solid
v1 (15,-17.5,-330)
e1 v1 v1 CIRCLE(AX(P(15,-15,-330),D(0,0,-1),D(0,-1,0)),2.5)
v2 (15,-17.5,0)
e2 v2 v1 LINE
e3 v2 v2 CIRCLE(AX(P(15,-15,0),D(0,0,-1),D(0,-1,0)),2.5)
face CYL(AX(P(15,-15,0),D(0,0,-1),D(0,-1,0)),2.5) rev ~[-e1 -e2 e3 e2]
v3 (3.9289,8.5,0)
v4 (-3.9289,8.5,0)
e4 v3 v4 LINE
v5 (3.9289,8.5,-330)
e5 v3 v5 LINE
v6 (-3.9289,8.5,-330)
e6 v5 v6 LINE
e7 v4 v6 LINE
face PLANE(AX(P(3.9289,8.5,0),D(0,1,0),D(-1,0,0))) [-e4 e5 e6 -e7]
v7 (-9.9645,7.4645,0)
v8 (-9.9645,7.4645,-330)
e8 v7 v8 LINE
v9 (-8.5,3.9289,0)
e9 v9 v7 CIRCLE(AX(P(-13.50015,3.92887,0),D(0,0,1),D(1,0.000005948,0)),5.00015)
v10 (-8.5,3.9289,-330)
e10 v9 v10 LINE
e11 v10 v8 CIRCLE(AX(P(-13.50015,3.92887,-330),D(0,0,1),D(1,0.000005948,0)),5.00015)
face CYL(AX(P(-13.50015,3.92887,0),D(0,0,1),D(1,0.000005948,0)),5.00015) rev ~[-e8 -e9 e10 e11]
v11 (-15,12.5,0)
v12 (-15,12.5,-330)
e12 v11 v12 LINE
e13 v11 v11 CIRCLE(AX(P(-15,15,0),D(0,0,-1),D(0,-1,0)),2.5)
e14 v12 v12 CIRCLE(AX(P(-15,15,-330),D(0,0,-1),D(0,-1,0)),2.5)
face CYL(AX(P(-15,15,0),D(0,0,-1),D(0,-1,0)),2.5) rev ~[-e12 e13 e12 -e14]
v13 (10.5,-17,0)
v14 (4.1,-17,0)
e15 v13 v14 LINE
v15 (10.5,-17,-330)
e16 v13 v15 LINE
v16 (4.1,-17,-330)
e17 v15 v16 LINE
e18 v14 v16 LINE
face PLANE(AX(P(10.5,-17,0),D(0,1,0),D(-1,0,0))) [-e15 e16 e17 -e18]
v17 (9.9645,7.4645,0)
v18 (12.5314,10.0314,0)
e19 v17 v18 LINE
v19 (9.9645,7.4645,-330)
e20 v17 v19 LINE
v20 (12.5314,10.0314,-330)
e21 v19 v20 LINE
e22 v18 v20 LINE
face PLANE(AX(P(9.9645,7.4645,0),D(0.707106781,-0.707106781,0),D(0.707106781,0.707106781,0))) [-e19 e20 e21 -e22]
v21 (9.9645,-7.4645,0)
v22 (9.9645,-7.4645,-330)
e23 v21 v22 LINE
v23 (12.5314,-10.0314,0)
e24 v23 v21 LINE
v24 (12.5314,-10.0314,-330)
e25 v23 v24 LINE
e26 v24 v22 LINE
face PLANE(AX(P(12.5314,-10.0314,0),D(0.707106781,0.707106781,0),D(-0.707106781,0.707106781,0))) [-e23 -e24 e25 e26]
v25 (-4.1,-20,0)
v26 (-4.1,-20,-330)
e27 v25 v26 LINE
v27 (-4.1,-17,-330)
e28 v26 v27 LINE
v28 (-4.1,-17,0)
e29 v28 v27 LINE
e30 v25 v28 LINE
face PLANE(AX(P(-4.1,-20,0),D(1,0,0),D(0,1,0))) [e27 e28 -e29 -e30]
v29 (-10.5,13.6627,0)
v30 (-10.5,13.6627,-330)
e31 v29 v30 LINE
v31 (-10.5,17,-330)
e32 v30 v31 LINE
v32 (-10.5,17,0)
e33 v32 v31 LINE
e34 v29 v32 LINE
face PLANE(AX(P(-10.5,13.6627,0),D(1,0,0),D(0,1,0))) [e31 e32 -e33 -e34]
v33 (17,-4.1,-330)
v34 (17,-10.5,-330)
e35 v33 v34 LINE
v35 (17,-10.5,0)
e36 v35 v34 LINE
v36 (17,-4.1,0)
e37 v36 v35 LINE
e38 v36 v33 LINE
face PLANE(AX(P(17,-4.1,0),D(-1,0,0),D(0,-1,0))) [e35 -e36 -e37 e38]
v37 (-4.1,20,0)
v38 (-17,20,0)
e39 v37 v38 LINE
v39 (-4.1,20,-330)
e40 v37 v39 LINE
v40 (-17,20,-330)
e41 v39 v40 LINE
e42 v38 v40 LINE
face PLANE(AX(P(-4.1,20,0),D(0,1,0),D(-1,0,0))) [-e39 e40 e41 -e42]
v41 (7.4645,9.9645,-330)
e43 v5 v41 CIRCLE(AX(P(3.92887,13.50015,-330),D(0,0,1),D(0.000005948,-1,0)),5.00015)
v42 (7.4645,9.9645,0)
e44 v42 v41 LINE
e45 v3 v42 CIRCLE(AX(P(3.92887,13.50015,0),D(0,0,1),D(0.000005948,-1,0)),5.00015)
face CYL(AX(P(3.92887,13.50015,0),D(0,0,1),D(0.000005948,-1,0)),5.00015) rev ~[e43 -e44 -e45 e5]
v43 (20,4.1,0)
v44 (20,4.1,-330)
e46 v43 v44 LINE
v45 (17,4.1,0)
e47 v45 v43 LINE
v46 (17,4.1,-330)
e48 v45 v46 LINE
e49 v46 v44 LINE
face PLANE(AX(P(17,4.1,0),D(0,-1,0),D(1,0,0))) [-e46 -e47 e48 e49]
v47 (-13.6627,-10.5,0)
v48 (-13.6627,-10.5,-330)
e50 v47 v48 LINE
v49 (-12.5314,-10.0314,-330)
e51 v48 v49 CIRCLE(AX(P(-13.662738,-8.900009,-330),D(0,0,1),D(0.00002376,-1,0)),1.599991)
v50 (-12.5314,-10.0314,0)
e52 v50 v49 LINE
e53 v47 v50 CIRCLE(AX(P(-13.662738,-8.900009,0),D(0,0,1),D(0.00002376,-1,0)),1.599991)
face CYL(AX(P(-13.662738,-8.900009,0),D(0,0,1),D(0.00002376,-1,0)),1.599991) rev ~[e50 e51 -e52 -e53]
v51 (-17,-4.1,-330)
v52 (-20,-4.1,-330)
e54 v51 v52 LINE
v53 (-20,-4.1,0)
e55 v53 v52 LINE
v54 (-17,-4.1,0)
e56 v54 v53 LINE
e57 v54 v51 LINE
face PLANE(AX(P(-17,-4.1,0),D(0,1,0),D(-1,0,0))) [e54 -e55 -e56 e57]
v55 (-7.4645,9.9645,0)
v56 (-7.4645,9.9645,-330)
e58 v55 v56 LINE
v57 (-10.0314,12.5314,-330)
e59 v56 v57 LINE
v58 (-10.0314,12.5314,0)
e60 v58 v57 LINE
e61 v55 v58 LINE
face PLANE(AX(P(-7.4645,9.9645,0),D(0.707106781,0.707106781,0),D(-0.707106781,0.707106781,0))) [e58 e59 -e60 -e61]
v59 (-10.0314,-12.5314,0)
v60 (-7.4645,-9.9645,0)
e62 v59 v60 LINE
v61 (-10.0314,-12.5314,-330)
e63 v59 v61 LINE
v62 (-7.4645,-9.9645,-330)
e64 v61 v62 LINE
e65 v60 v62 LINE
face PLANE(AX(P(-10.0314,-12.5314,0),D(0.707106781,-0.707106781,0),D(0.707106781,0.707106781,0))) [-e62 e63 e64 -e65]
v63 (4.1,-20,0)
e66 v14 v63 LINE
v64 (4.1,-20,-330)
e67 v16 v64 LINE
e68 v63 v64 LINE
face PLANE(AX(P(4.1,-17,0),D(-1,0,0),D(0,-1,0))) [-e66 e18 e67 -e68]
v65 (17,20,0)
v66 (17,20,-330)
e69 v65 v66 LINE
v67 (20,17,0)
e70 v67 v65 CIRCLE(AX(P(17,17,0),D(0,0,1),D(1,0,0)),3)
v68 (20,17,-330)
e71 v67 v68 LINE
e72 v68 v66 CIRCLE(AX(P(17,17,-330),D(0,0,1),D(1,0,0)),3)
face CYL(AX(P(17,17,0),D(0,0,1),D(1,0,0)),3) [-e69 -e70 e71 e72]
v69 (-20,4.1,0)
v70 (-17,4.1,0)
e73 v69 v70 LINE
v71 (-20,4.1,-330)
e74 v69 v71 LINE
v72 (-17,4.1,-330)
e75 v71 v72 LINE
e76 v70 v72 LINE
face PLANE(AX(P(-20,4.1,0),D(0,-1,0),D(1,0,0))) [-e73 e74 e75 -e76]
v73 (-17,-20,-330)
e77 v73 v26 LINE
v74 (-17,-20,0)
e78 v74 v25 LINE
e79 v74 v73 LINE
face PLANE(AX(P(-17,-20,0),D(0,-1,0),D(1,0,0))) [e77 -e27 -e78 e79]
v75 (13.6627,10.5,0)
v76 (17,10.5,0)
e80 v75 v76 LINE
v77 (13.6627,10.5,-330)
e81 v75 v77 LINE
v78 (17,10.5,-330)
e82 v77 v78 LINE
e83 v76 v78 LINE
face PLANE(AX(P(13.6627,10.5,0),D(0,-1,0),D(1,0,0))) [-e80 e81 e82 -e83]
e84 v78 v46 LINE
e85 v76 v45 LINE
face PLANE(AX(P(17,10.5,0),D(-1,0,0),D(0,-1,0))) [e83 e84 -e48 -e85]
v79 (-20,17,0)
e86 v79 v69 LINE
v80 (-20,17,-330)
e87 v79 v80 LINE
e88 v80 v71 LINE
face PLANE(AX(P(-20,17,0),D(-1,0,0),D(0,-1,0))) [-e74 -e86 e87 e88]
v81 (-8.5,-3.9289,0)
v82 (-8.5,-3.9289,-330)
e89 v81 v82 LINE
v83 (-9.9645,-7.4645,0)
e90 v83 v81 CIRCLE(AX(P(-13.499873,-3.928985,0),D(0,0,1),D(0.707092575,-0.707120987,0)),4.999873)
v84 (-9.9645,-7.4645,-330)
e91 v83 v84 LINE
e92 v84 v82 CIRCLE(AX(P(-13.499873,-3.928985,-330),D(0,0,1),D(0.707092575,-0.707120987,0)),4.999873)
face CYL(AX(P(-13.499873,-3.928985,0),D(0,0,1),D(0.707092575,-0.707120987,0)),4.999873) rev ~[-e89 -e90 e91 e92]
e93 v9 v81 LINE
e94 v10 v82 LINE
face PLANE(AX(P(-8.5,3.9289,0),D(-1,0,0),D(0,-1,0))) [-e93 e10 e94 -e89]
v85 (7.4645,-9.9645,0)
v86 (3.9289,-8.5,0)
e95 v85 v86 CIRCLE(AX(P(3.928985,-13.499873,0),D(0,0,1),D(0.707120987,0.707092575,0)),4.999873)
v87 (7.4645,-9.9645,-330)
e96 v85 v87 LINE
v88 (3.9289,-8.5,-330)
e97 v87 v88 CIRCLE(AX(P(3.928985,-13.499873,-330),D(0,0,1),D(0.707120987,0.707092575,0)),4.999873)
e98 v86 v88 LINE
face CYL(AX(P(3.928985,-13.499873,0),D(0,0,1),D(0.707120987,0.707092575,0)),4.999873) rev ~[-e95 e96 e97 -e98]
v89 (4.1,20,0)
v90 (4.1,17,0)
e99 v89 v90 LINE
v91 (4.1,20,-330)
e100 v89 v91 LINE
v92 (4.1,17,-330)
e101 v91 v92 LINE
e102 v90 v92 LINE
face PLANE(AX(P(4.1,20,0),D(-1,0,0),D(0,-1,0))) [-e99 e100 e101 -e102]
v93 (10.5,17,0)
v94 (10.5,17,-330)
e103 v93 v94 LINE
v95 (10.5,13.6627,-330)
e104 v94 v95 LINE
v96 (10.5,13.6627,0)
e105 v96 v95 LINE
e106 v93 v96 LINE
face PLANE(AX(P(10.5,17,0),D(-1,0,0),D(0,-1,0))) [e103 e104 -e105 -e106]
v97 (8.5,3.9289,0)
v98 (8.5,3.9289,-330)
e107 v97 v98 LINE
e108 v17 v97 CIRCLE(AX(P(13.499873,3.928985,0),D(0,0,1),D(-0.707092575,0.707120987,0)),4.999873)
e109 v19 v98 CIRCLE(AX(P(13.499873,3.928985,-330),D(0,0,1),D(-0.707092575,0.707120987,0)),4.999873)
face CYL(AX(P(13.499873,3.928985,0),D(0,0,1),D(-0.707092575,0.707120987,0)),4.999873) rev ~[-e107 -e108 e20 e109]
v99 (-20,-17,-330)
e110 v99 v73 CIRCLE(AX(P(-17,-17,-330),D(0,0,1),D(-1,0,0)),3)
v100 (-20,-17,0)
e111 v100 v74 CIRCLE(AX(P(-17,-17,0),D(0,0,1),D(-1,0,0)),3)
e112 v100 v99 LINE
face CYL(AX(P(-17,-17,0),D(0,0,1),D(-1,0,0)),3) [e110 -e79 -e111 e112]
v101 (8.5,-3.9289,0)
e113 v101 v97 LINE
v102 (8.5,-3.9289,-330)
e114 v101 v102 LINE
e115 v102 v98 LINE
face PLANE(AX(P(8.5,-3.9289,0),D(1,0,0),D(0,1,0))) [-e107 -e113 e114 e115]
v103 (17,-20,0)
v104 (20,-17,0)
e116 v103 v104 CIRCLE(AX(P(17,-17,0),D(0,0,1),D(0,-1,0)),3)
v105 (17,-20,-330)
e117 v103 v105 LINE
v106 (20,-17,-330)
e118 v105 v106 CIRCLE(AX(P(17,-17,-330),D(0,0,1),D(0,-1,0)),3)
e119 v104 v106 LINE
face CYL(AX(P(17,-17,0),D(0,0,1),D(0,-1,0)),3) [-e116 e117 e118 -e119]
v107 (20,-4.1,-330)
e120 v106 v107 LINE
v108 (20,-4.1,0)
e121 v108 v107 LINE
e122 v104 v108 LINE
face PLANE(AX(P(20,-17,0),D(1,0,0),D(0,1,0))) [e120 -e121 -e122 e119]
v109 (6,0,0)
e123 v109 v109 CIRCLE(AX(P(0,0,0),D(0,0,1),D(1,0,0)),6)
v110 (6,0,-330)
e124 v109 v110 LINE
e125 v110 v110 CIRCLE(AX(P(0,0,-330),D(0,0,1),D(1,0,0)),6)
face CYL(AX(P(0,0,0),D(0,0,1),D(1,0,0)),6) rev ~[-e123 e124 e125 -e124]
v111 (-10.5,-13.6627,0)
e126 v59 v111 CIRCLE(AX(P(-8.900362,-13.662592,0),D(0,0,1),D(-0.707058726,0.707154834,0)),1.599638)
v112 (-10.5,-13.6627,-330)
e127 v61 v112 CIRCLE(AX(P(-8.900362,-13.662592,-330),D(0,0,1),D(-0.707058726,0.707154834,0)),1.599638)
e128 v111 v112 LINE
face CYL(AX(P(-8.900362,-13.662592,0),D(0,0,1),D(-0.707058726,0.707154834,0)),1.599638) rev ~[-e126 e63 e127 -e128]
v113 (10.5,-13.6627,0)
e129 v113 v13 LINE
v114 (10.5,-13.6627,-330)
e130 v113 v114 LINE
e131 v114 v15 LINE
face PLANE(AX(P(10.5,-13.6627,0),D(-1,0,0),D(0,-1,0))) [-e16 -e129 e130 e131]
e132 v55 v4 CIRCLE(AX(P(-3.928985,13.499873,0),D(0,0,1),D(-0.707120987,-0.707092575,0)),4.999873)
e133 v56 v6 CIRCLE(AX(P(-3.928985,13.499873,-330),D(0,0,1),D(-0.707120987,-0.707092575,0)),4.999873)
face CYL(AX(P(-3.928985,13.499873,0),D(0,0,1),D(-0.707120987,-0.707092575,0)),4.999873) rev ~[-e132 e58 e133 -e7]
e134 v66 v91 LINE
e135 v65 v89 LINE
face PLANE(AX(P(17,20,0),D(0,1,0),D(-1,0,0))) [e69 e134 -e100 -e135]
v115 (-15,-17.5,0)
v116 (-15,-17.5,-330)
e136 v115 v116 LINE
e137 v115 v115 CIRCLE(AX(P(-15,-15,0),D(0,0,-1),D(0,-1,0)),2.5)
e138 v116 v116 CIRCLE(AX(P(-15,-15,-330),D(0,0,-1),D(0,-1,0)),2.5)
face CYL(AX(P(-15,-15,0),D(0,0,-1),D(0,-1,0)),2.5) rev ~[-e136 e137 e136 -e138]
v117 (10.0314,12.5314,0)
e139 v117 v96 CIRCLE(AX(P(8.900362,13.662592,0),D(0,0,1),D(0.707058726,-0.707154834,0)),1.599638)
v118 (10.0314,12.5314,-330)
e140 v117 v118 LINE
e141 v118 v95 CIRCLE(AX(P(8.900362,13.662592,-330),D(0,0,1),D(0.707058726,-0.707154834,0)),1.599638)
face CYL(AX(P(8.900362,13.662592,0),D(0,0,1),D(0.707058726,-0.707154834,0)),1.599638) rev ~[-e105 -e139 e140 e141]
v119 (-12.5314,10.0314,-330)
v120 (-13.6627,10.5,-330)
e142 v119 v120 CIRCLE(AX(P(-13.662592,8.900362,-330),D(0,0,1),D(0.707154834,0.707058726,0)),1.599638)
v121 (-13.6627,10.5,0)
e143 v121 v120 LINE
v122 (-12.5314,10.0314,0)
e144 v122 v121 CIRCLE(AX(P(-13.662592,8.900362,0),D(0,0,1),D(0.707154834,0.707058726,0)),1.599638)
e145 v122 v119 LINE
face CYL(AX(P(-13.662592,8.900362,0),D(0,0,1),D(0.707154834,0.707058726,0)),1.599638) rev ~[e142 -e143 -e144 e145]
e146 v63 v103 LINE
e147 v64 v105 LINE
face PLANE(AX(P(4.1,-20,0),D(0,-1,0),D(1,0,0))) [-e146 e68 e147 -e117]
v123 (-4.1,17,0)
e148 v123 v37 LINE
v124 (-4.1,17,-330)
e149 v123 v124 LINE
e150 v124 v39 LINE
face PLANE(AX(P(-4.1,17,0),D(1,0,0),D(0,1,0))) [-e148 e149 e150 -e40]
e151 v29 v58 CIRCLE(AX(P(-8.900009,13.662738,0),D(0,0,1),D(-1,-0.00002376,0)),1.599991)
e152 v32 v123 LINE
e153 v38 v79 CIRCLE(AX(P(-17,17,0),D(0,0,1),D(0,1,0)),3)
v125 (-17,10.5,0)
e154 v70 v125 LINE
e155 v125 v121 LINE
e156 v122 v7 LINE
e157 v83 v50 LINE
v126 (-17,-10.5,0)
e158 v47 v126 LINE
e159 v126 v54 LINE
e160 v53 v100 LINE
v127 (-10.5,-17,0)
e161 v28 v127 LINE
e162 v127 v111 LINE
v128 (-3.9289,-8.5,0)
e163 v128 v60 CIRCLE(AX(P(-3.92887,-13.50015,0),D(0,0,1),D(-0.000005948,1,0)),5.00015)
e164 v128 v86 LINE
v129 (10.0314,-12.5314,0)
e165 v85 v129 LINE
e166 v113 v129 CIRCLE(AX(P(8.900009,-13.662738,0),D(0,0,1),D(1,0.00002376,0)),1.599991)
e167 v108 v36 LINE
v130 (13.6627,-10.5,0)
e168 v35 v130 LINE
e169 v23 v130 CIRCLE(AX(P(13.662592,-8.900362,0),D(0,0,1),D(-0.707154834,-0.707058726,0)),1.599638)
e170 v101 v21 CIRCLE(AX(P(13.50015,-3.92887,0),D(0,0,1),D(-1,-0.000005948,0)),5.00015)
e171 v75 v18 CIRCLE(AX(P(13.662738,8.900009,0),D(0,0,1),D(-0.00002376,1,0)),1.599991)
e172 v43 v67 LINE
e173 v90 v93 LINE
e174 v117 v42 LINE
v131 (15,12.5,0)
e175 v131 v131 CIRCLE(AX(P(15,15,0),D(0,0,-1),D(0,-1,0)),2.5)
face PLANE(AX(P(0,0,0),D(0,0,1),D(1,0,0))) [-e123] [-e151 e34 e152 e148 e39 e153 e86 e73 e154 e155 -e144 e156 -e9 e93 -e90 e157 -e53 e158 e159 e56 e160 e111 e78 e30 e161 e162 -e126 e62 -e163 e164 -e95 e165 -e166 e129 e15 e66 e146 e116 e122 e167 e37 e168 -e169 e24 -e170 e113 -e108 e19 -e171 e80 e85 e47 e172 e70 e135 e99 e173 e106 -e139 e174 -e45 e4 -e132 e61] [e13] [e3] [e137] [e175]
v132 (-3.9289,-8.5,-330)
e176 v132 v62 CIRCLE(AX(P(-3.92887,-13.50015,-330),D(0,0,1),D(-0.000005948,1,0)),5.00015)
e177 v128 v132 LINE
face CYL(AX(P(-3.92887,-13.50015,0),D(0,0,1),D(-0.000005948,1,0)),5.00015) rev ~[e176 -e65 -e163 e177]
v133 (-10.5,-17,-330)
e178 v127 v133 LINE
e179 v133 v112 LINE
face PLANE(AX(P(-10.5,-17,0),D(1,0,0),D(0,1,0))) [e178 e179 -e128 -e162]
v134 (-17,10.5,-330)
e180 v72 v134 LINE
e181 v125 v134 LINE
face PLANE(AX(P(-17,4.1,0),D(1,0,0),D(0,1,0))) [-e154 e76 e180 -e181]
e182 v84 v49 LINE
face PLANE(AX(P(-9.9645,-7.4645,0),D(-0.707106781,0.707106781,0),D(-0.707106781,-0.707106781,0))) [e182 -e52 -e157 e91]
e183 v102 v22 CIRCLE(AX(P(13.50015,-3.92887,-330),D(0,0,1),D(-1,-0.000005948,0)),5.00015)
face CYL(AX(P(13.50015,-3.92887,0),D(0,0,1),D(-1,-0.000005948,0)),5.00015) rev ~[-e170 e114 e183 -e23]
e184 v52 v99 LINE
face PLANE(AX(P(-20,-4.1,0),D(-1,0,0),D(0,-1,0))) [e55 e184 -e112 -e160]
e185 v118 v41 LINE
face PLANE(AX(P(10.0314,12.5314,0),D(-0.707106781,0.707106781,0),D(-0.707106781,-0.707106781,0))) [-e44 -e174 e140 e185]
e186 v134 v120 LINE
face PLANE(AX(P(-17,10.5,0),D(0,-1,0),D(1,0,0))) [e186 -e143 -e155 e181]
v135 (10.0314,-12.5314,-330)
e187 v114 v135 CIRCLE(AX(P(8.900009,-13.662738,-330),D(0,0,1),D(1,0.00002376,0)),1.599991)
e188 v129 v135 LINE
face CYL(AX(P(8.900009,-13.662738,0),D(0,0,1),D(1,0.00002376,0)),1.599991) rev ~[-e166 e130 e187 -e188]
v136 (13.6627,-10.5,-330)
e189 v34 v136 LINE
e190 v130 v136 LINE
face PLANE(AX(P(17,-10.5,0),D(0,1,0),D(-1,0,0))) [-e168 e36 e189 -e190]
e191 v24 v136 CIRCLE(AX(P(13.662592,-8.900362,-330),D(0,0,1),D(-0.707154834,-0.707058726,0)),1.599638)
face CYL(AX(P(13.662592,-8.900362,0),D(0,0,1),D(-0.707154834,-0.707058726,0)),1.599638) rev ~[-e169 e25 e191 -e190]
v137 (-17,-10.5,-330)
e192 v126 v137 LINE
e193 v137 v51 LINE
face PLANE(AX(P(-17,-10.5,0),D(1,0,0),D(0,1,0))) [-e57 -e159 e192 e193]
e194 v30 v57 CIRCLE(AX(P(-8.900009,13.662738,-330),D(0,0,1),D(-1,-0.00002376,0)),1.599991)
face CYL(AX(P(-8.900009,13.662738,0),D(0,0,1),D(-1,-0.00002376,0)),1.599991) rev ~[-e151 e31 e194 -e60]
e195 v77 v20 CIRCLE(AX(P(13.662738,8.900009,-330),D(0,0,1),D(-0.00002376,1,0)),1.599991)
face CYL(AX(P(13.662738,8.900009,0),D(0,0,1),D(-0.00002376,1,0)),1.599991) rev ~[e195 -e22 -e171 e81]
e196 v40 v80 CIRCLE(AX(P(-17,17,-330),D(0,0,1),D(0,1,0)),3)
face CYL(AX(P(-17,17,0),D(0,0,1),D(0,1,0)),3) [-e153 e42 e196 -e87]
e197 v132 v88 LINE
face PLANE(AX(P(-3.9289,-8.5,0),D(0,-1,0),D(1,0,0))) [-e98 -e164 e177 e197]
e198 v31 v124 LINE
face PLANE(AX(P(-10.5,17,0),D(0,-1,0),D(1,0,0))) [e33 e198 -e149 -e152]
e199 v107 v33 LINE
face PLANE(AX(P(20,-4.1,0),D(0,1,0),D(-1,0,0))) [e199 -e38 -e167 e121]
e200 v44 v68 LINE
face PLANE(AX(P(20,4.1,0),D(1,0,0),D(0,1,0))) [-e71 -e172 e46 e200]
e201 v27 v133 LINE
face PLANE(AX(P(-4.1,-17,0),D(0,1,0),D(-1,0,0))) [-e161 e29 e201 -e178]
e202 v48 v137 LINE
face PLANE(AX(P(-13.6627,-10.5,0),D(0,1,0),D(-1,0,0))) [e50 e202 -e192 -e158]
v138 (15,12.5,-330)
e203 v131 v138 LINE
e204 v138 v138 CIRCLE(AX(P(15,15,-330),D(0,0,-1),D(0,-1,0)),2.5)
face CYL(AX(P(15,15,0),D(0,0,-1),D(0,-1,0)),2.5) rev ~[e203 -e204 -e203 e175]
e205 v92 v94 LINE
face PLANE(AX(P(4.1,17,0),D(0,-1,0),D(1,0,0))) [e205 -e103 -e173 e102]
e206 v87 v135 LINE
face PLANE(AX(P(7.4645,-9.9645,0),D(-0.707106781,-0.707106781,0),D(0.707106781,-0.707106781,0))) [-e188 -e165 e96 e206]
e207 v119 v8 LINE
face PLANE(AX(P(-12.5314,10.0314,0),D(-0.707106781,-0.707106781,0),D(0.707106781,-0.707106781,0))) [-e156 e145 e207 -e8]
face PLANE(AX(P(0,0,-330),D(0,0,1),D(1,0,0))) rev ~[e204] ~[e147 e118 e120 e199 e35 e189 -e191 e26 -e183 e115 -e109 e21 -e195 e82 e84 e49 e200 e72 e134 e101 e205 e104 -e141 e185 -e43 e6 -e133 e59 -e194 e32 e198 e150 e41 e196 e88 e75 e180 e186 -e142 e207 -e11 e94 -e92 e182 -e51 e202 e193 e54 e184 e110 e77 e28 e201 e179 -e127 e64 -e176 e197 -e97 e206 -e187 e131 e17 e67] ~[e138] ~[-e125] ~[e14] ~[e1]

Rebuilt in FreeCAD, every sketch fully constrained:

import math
import FreeCAD as App
import Part
import Sketcher
Q = App.Units.Quantity

doc = App.newDocument("Part")
body = doc.addObject("PartDesign::Body", "Body")

sketch1 = body.newObject("Sketcher::SketchObject", "Sketch")
sketch1.AttachmentSupport = (doc.getObject("XY_Plane"), [""])
sketch1.MapMode = "FlatFace"
sketch1.addGeometry(Part.LineSegment(App.Vector(-20, -4.1, 0), App.Vector(-20, -17, 0)), False)
sketch1.addGeometry(Part.ArcOfCircle(Part.Circle(App.Vector(-17, -17, 0), App.Vector(0, 0, 1), 3), math.radians(180), math.radians(270)), False)
sketch1.addGeometry(Part.LineSegment(App.Vector(-17, -20, 0), App.Vector(-4.1, -20, 0)), False)
sketch1.addGeometry(Part.LineSegment(App.Vector(-4.1, -20, 0), App.Vector(-4.1, -17, 0)), False)
sketch1.addGeometry(Part.LineSegment(App.Vector(-4.1, -17, 0), App.Vector(-10.5, -17, 0)), False)
sketch1.addGeometry(Part.LineSegment(App.Vector(-10.5, -17, 0), App.Vector(-10.5, -13.7, 0)), False)
sketch1.addGeometry(Part.ArcOfCircle(Part.Circle(App.Vector(-8.9, -13.7, 0), App.Vector(0, 0, 1), 1.6), math.radians(135), math.radians(180)), False)
sketch1.addGeometry(Part.LineSegment(App.Vector(-10, -12.5, 0), App.Vector(-7.5, -10, 0)), False)
sketch1.addGeometry(Part.ArcOfCircle(Part.Circle(App.Vector(-3.9, -13.5, 0), App.Vector(0, 0, 1), 5), math.radians(90), math.radians(135)), False)
sketch1.addGeometry(Part.LineSegment(App.Vector(-3.9, -8.5, 0), App.Vector(3.9, -8.5, 0)), False)
sketch1.addGeometry(Part.ArcOfCircle(Part.Circle(App.Vector(3.9, -13.5, 0), App.Vector(0, 0, 1), 5), math.radians(45), math.radians(90)), False)
sketch1.addGeometry(Part.LineSegment(App.Vector(7.5, -10, 0), App.Vector(10, -12.5, 0)), False)
sketch1.addGeometry(Part.ArcOfCircle(Part.Circle(App.Vector(8.9, -13.7, 0), App.Vector(0, 0, 1), 1.6), math.radians(0), math.radians(45)), False)
sketch1.addGeometry(Part.LineSegment(App.Vector(10.5, -13.7, 0), App.Vector(10.5, -17, 0)), False)
sketch1.addGeometry(Part.LineSegment(App.Vector(10.5, -17, 0), App.Vector(4.1, -17, 0)), False)
sketch1.addGeometry(Part.LineSegment(App.Vector(4.1, -17, 0), App.Vector(4.1, -20, 0)), False)
sketch1.addGeometry(Part.LineSegment(App.Vector(4.1, -20, 0), App.Vector(17, -20, 0)), False)
sketch1.addGeometry(Part.ArcOfCircle(Part.Circle(App.Vector(17, -17, 0), App.Vector(0, 0, 1), 3), math.radians(-90), math.radians(0)), False)
sketch1.addGeometry(Part.LineSegment(App.Vector(20, -17, 0), App.Vector(20, -4.1, 0)), False)
sketch1.addGeometry(Part.LineSegment(App.Vector(20, -4.1, 0), App.Vector(17, -4.1, 0)), False)
sketch1.addGeometry(Part.LineSegment(App.Vector(17, -4.1, 0), App.Vector(17, -10.5, 0)), False)
sketch1.addGeometry(Part.LineSegment(App.Vector(17, -10.5, 0), App.Vector(13.7, -10.5, 0)), False)
sketch1.addGeometry(Part.ArcOfCircle(Part.Circle(App.Vector(13.7, -8.9, 0), App.Vector(0, 0, 1), 1.6), math.radians(-135), math.radians(-90)), False)
sketch1.addGeometry(Part.LineSegment(App.Vector(12.5, -10, 0), App.Vector(10, -7.5, 0)), False)
sketch1.addGeometry(Part.ArcOfCircle(Part.Circle(App.Vector(13.5, -3.9, 0), App.Vector(0, 0, 1), 5), math.radians(180), math.radians(225)), False)
sketch1.addGeometry(Part.LineSegment(App.Vector(8.5, -3.9, 0), App.Vector(8.5, 3.9, 0)), False)
sketch1.addGeometry(Part.ArcOfCircle(Part.Circle(App.Vector(13.5, 3.9, 0), App.Vector(0, 0, 1), 5), math.radians(135), math.radians(180)), False)
sketch1.addGeometry(Part.LineSegment(App.Vector(10, 7.5, 0), App.Vector(12.5, 10, 0)), False)
sketch1.addGeometry(Part.ArcOfCircle(Part.Circle(App.Vector(13.7, 8.9, 0), App.Vector(0, 0, 1), 1.6), math.radians(90), math.radians(135)), False)
sketch1.addGeometry(Part.LineSegment(App.Vector(13.7, 10.5, 0), App.Vector(17, 10.5, 0)), False)
sketch1.addGeometry(Part.LineSegment(App.Vector(17, 10.5, 0), App.Vector(17, 4.1, 0)), False)
sketch1.addGeometry(Part.LineSegment(App.Vector(17, 4.1, 0), App.Vector(20, 4.1, 0)), False)
sketch1.addGeometry(Part.LineSegment(App.Vector(20, 4.1, 0), App.Vector(20, 17, 0)), False)
sketch1.addGeometry(Part.ArcOfCircle(Part.Circle(App.Vector(17, 17, 0), App.Vector(0, 0, 1), 3), math.radians(0), math.radians(90)), False)
sketch1.addGeometry(Part.LineSegment(App.Vector(17, 20, 0), App.Vector(4.1, 20, 0)), False)
sketch1.addGeometry(Part.LineSegment(App.Vector(4.1, 20, 0), App.Vector(4.1, 17, 0)), False)
sketch1.addGeometry(Part.LineSegment(App.Vector(4.1, 17, 0), App.Vector(10.5, 17, 0)), False)
sketch1.addGeometry(Part.LineSegment(App.Vector(10.5, 17, 0), App.Vector(10.5, 13.7, 0)), False)
sketch1.addGeometry(Part.ArcOfCircle(Part.Circle(App.Vector(8.9, 13.7, 0), App.Vector(0, 0, 1), 1.6), math.radians(-45), math.radians(0)), False)
sketch1.addGeometry(Part.LineSegment(App.Vector(10, 12.5, 0), App.Vector(7.5, 10, 0)), False)
sketch1.addGeometry(Part.ArcOfCircle(Part.Circle(App.Vector(3.9, 13.5, 0), App.Vector(0, 0, 1), 5), math.radians(-90), math.radians(-45)), False)
sketch1.addGeometry(Part.LineSegment(App.Vector(3.9, 8.5, 0), App.Vector(-3.9, 8.5, 0)), False)
sketch1.addGeometry(Part.ArcOfCircle(Part.Circle(App.Vector(-3.9, 13.5, 0), App.Vector(0, 0, 1), 5), math.radians(-135), math.radians(-90)), False)
sketch1.addGeometry(Part.LineSegment(App.Vector(-7.5, 10, 0), App.Vector(-10, 12.5, 0)), False)
sketch1.addGeometry(Part.ArcOfCircle(Part.Circle(App.Vector(-8.9, 13.7, 0), App.Vector(0, 0, 1), 1.6), math.radians(180), math.radians(225)), False)
sketch1.addGeometry(Part.LineSegment(App.Vector(-10.5, 13.7, 0), App.Vector(-10.5, 17, 0)), False)
sketch1.addGeometry(Part.LineSegment(App.Vector(-10.5, 17, 0), App.Vector(-4.1, 17, 0)), False)
sketch1.addGeometry(Part.LineSegment(App.Vector(-4.1, 17, 0), App.Vector(-4.1, 20, 0)), False)
sketch1.addGeometry(Part.LineSegment(App.Vector(-4.1, 20, 0), App.Vector(-17, 20, 0)), False)
sketch1.addGeometry(Part.ArcOfCircle(Part.Circle(App.Vector(-17, 17, 0), App.Vector(0, 0, 1), 3), math.radians(90), math.radians(180)), False)
sketch1.addGeometry(Part.LineSegment(App.Vector(-20, 17, 0), App.Vector(-20, 4.1, 0)), False)
sketch1.addGeometry(Part.LineSegment(App.Vector(-20, 4.1, 0), App.Vector(-17, 4.1, 0)), False)
sketch1.addGeometry(Part.LineSegment(App.Vector(-17, 4.1, 0), App.Vector(-17, 10.5, 0)), False)
sketch1.addGeometry(Part.LineSegment(App.Vector(-17, 10.5, 0), App.Vector(-13.7, 10.5, 0)), False)
sketch1.addGeometry(Part.ArcOfCircle(Part.Circle(App.Vector(-13.7, 8.9, 0), App.Vector(0, 0, 1), 1.6), math.radians(45), math.radians(90)), False)
sketch1.addGeometry(Part.LineSegment(App.Vector(-12.5, 10, 0), App.Vector(-10, 7.5, 0)), False)
sketch1.addGeometry(Part.ArcOfCircle(Part.Circle(App.Vector(-13.5, 3.9, 0), App.Vector(0, 0, 1), 5), math.radians(0), math.radians(45)), False)
sketch1.addGeometry(Part.LineSegment(App.Vector(-8.5, 3.9, 0), App.Vector(-8.5, -3.9, 0)), False)
sketch1.addGeometry(Part.ArcOfCircle(Part.Circle(App.Vector(-13.5, -3.9, 0), App.Vector(0, 0, 1), 5), math.radians(-45), math.radians(0)), False)
sketch1.addGeometry(Part.LineSegment(App.Vector(-10, -7.5, 0), App.Vector(-12.5, -10, 0)), False)
sketch1.addGeometry(Part.ArcOfCircle(Part.Circle(App.Vector(-13.7, -8.9, 0), App.Vector(0, 0, 1), 1.6), math.radians(-90), math.radians(-45)), False)
sketch1.addGeometry(Part.LineSegment(App.Vector(-13.7, -10.5, 0), App.Vector(-17, -10.5, 0)), False)
sketch1.addGeometry(Part.LineSegment(App.Vector(-17, -10.5, 0), App.Vector(-17, -4.1, 0)), False)
sketch1.addGeometry(Part.LineSegment(App.Vector(-17, -4.1, 0), App.Vector(-20, -4.1, 0)), False)
sketch1.addGeometry(Part.Circle(App.Vector(0, 0, 0), App.Vector(0, 0, 1), 6), False)
sketch1.addConstraint(Sketcher.Constraint("Tangent", 0, 2, 1, 1))
sketch1.addConstraint(Sketcher.Constraint("Tangent", 1, 2, 2, 1))
sketch1.addConstraint(Sketcher.Constraint("Coincident", 2, 2, 3, 1))
sketch1.addConstraint(Sketcher.Constraint("Coincident", 3, 2, 4, 1))
sketch1.addConstraint(Sketcher.Constraint("Coincident", 4, 2, 5, 1))
sketch1.addConstraint(Sketcher.Constraint("Tangent", 5, 2, 6, 2))
sketch1.addConstraint(Sketcher.Constraint("Tangent", 6, 1, 7, 1))
sketch1.addConstraint(Sketcher.Constraint("Tangent", 7, 2, 8, 2))
sketch1.addConstraint(Sketcher.Constraint("Tangent", 8, 1, 9, 1))
sketch1.addConstraint(Sketcher.Constraint("Tangent", 9, 2, 10, 2))
sketch1.addConstraint(Sketcher.Constraint("Tangent", 10, 1, 11, 1))
sketch1.addConstraint(Sketcher.Constraint("Tangent", 11, 2, 12, 2))
sketch1.addConstraint(Sketcher.Constraint("Tangent", 12, 1, 13, 1))
sketch1.addConstraint(Sketcher.Constraint("Coincident", 13, 2, 14, 1))
sketch1.addConstraint(Sketcher.Constraint("Coincident", 14, 2, 15, 1))
sketch1.addConstraint(Sketcher.Constraint("Coincident", 15, 2, 16, 1))
sketch1.addConstraint(Sketcher.Constraint("Tangent", 16, 2, 17, 1))
sketch1.addConstraint(Sketcher.Constraint("Tangent", 17, 2, 18, 1))
sketch1.addConstraint(Sketcher.Constraint("Coincident", 18, 2, 19, 1))
sketch1.addConstraint(Sketcher.Constraint("Coincident", 19, 2, 20, 1))
sketch1.addConstraint(Sketcher.Constraint("Coincident", 20, 2, 21, 1))
sketch1.addConstraint(Sketcher.Constraint("Tangent", 21, 2, 22, 2))
sketch1.addConstraint(Sketcher.Constraint("Tangent", 22, 1, 23, 1))
sketch1.addConstraint(Sketcher.Constraint("Tangent", 23, 2, 24, 2))
sketch1.addConstraint(Sketcher.Constraint("Tangent", 24, 1, 25, 1))
sketch1.addConstraint(Sketcher.Constraint("Tangent", 25, 2, 26, 2))
sketch1.addConstraint(Sketcher.Constraint("Tangent", 26, 1, 27, 1))
sketch1.addConstraint(Sketcher.Constraint("Tangent", 27, 2, 28, 2))
sketch1.addConstraint(Sketcher.Constraint("Tangent", 28, 1, 29, 1))
sketch1.addConstraint(Sketcher.Constraint("Coincident", 29, 2, 30, 1))
sketch1.addConstraint(Sketcher.Constraint("Coincident", 30, 2, 31, 1))
sketch1.addConstraint(Sketcher.Constraint("Coincident", 31, 2, 32, 1))
sketch1.addConstraint(Sketcher.Constraint("Tangent", 32, 2, 33, 1))
sketch1.addConstraint(Sketcher.Constraint("Tangent", 33, 2, 34, 1))
sketch1.addConstraint(Sketcher.Constraint("Coincident", 34, 2, 35, 1))
sketch1.addConstraint(Sketcher.Constraint("Coincident", 35, 2, 36, 1))
sketch1.addConstraint(Sketcher.Constraint("Coincident", 36, 2, 37, 1))
sketch1.addConstraint(Sketcher.Constraint("Tangent", 37, 2, 38, 2))
sketch1.addConstraint(Sketcher.Constraint("Tangent", 38, 1, 39, 1))
sketch1.addConstraint(Sketcher.Constraint("Tangent", 39, 2, 40, 2))
sketch1.addConstraint(Sketcher.Constraint("Tangent", 40, 1, 41, 1))
sketch1.addConstraint(Sketcher.Constraint("Tangent", 41, 2, 42, 2))
sketch1.addConstraint(Sketcher.Constraint("Tangent", 42, 1, 43, 1))
sketch1.addConstraint(Sketcher.Constraint("Tangent", 43, 2, 44, 2))
sketch1.addConstraint(Sketcher.Constraint("Tangent", 44, 1, 45, 1))
sketch1.addConstraint(Sketcher.Constraint("Coincident", 45, 2, 46, 1))
sketch1.addConstraint(Sketcher.Constraint("Coincident", 46, 2, 47, 1))
sketch1.addConstraint(Sketcher.Constraint("Coincident", 47, 2, 48, 1))
sketch1.addConstraint(Sketcher.Constraint("Tangent", 48, 2, 49, 1))
sketch1.addConstraint(Sketcher.Constraint("Tangent", 49, 2, 50, 1))
sketch1.addConstraint(Sketcher.Constraint("Coincident", 50, 2, 51, 1))
sketch1.addConstraint(Sketcher.Constraint("Coincident", 51, 2, 52, 1))
sketch1.addConstraint(Sketcher.Constraint("Coincident", 52, 2, 53, 1))
sketch1.addConstraint(Sketcher.Constraint("Tangent", 53, 2, 54, 2))
sketch1.addConstraint(Sketcher.Constraint("Tangent", 54, 1, 55, 1))
sketch1.addConstraint(Sketcher.Constraint("Tangent", 55, 2, 56, 2))
sketch1.addConstraint(Sketcher.Constraint("Tangent", 56, 1, 57, 1))
sketch1.addConstraint(Sketcher.Constraint("Tangent", 57, 2, 58, 2))
sketch1.addConstraint(Sketcher.Constraint("Tangent", 58, 1, 59, 1))
sketch1.addConstraint(Sketcher.Constraint("Tangent", 59, 2, 60, 2))
sketch1.addConstraint(Sketcher.Constraint("Tangent", 60, 1, 61, 1))
sketch1.addConstraint(Sketcher.Constraint("Coincident", 61, 2, 62, 1))
sketch1.addConstraint(Sketcher.Constraint("Coincident", 62, 2, 63, 1))
sketch1.addConstraint(Sketcher.Constraint("Coincident", 63, 2, 0, 1))
sketch1.addConstraint(Sketcher.Constraint("Vertical", 0))
sketch1.addConstraint(Sketcher.Constraint("Horizontal", 2))
sketch1.addConstraint(Sketcher.Constraint("Vertical", 3))
sketch1.addConstraint(Sketcher.Constraint("Horizontal", 4))
sketch1.addConstraint(Sketcher.Constraint("Vertical", 5))
sketch1.addConstraint(Sketcher.Constraint("Horizontal", 9))
sketch1.addConstraint(Sketcher.Constraint("Vertical", 13))
sketch1.addConstraint(Sketcher.Constraint("Horizontal", 14))
sketch1.addConstraint(Sketcher.Constraint("Vertical", 15))
sketch1.addConstraint(Sketcher.Constraint("Horizontal", 16))
sketch1.addConstraint(Sketcher.Constraint("Vertical", 18))
sketch1.addConstraint(Sketcher.Constraint("Horizontal", 19))
sketch1.addConstraint(Sketcher.Constraint("Vertical", 20))
sketch1.addConstraint(Sketcher.Constraint("Horizontal", 21))
sketch1.addConstraint(Sketcher.Constraint("Vertical", 25))
sketch1.addConstraint(Sketcher.Constraint("Horizontal", 29))
sketch1.addConstraint(Sketcher.Constraint("Vertical", 30))
sketch1.addConstraint(Sketcher.Constraint("Horizontal", 31))
sketch1.addConstraint(Sketcher.Constraint("Vertical", 32))
sketch1.addConstraint(Sketcher.Constraint("Horizontal", 34))
sketch1.addConstraint(Sketcher.Constraint("Vertical", 35))
sketch1.addConstraint(Sketcher.Constraint("Horizontal", 36))
sketch1.addConstraint(Sketcher.Constraint("Vertical", 37))
sketch1.addConstraint(Sketcher.Constraint("Horizontal", 41))
sketch1.addConstraint(Sketcher.Constraint("Vertical", 45))
sketch1.addConstraint(Sketcher.Constraint("Horizontal", 46))
sketch1.addConstraint(Sketcher.Constraint("Vertical", 47))
sketch1.addConstraint(Sketcher.Constraint("Horizontal", 48))
sketch1.addConstraint(Sketcher.Constraint("Vertical", 50))
sketch1.addConstraint(Sketcher.Constraint("Horizontal", 51))
sketch1.addConstraint(Sketcher.Constraint("Vertical", 52))
sketch1.addConstraint(Sketcher.Constraint("Horizontal", 53))
sketch1.addConstraint(Sketcher.Constraint("Vertical", 57))
sketch1.addConstraint(Sketcher.Constraint("Horizontal", 61))
sketch1.addConstraint(Sketcher.Constraint("Vertical", 62))
sketch1.addConstraint(Sketcher.Constraint("Horizontal", 63))
sketch1.addConstraint(Sketcher.Constraint("Coincident", 64, 3, -1, 1))
sketch1.addConstraint(Sketcher.Constraint("Equal", 8, 10))
sketch1.addConstraint(Sketcher.Constraint("Equal", 6, 12))
sketch1.addConstraint(Sketcher.Constraint("Equal", 1, 17))
sketch1.addConstraint(Sketcher.Constraint("Equal", 12, 22))
sketch1.addConstraint(Sketcher.Constraint("Equal", 10, 24))
sketch1.addConstraint(Sketcher.Constraint("Equal", 24, 26))
sketch1.addConstraint(Sketcher.Constraint("Equal", 22, 28))
sketch1.addConstraint(Sketcher.Constraint("Equal", 17, 33))
sketch1.addConstraint(Sketcher.Constraint("Equal", 28, 38))
sketch1.addConstraint(Sketcher.Constraint("Equal", 26, 40))
sketch1.addConstraint(Sketcher.Constraint("Equal", 40, 42))
sketch1.addConstraint(Sketcher.Constraint("Equal", 38, 44))
sketch1.addConstraint(Sketcher.Constraint("Equal", 33, 49))
sketch1.addConstraint(Sketcher.Constraint("Equal", 44, 54))
sketch1.addConstraint(Sketcher.Constraint("Equal", 42, 56))
sketch1.addConstraint(Sketcher.Constraint("Equal", 56, 58))
sketch1.addConstraint(Sketcher.Constraint("Equal", 54, 60))
sketch1.addConstraint(Sketcher.Constraint("Symmetric", 1, 3, 33, 3, -1, 1))
sketch1.addConstraint(Sketcher.Constraint("Symmetric", 6, 3, 38, 3, -1, 1))
sketch1.addConstraint(Sketcher.Constraint("Symmetric", 8, 3, 40, 3, -1, 1))
sketch1.addConstraint(Sketcher.Constraint("Symmetric", 12, 3, 44, 3, -1, 1))
sketch1.addConstraint(Sketcher.Constraint("Symmetric", 17, 3, 49, 3, -1, 1))
sketch1.addConstraint(Sketcher.Constraint("Symmetric", 22, 3, 54, 3, -1, 1))
sketch1.addConstraint(Sketcher.Constraint("Symmetric", 24, 3, 56, 3, -1, 1))
sketch1.addConstraint(Sketcher.Constraint("Symmetric", 28, 3, 60, 3, -1, 1))
sketch1.addConstraint(Sketcher.Constraint("Symmetric", 3, 2, 35, 2, -1, 1))
sketch1.addConstraint(Sketcher.Constraint("Symmetric", 14, 2, 46, 2, -1, 1))
sketch1.addConstraint(Sketcher.Constraint("Symmetric", 19, 2, 51, 2, -1, 1))
sketch1.addConstraint(Sketcher.Constraint("Symmetric", 30, 2, 62, 2, -1, 1))
sketch1.addConstraint(Sketcher.Constraint("Symmetric", 6, 3, 12, 3, -2))
sketch1.addConstraint(Sketcher.Constraint("Symmetric", 1, 3, 17, 3, -2))
sketch1.addConstraint(Sketcher.Constraint("Symmetric", 28, 3, 54, 3, -2))
sketch1.addConstraint(Sketcher.Constraint("Symmetric", 3, 2, 14, 2, -2))
sketch1.addConstraint(Sketcher.Constraint("Symmetric", 30, 2, 51, 2, -2))
sketch1.addConstraint(Sketcher.Constraint("Perpendicular", 7, 11))
sketch1.addConstraint(Sketcher.Constraint("Parallel", 11, 23))
sketch1.addConstraint(Sketcher.Constraint("Perpendicular", 23, 27))
sketch1.addConstraint(Sketcher.Constraint("Perpendicular", 39, 43))
sketch1.addConstraint(Sketcher.Constraint("Perpendicular", 55, 59))
sketch1.addConstraint(Sketcher.Constraint("Horizontal", 26, 3, 56, 3))
sketch1.addConstraint(Sketcher.Constraint("Horizontal", 0, 2, 3, 2))
sketch1.addConstraint(Sketcher.Constraint("Vertical", 16, 2, 19, 2))
sketch1.addConstraint(Sketcher.Constraint("Equal", 48, 0))
sketch1.addConstraint(Sketcher.Constraint("Equal", 61, 5))
sketch1.addConstraint(Sketcher.Constraint("Equal", 46, 20))
sketch1.addConstraint(Sketcher.Constraint("Equal", 41, 25))
sketch1.addConstraint(Sketcher.Constraint("Equal", 11, 23))
sketch1.addConstraint(Sketcher.Constraint("Diameter", 64, Q("12 mm")))
sketch1.addConstraint(Sketcher.Constraint("Radius", 1, Q("3 mm")))
sketch1.addConstraint(Sketcher.Constraint("Radius", 8, Q("5 mm")))
sketch1.addConstraint(Sketcher.Constraint("DistanceX", 2, 1, 2, 2, Q("12.9 mm")))
sketch1.addConstraint(Sketcher.Constraint("DistanceX", 4, 2, 4, 1, Q("6.4 mm")))
sketch1.addConstraint(Sketcher.Constraint("DistanceX", 1, 3, -1, 1, Q("17 mm")))
sketch1.addConstraint(Sketcher.Constraint("DistanceY", 8, 3, -1, 1, Q("13.5 mm")))
sketch1.addConstraint(Sketcher.Constraint("Radius", 6, Q("1.5998 mm")))
sketch1.addConstraint(Sketcher.Constraint("DistanceX", 9, 1, 9, 2, Q("7.8578 mm")))
pad1 = body.newObject("PartDesign::Pad", "Pad")
pad1.Profile = sketch1
pad1.Length = 330
pad1.Reversed = True

sketch2 = body.newObject("Sketcher::SketchObject", "Sketch001")
sketch2.AttachmentSupport = (doc.getObject("XY_Plane"), [""])
sketch2.MapMode = "FlatFace"
sketch2.addGeometry(Part.Circle(App.Vector(-15, -15, 0), App.Vector(0, 0, 1), 2.5), False)
sketch2.addConstraint(Sketcher.Constraint("Diameter", 0, Q("5 mm")))
sketch2.addConstraint(Sketcher.Constraint("DistanceX", 0, 3, -1, 1, Q("15 mm")))
sketch2.addConstraint(Sketcher.Constraint("DistanceY", 0, 3, -1, 1, Q("15 mm")))
doc.recompute()
hole = body.newObject("PartDesign::Hole", "Hole")
hole.Profile = sketch2
hole.ThreadType = "None"
hole.Diameter = 5
hole.DepthType = "Dimension"
hole.Depth = 6000
hole.DrillPoint = "Flat"

sketch3 = body.newObject("Sketcher::SketchObject", "Sketch002")
sketch3.AttachmentSupport = (doc.getObject("XY_Plane"), [""])
sketch3.MapMode = "FlatFace"
sketch3.addGeometry(Part.Circle(App.Vector(15, -15, 0), App.Vector(0, 0, 1), 2.5), False)
sketch3.addConstraint(Sketcher.Constraint("Diameter", 0, Q("5 mm")))
sketch3.addConstraint(Sketcher.Constraint("DistanceX", -1, 1, 0, 3, Q("15 mm")))
sketch3.addConstraint(Sketcher.Constraint("DistanceY", 0, 3, -1, 1, Q("15 mm")))
doc.recompute()
hole2 = body.newObject("PartDesign::Hole", "Hole001")
hole2.Profile = sketch3
hole2.ThreadType = "None"
hole2.Diameter = 5
hole2.DepthType = "Dimension"
hole2.Depth = 6000
hole2.DrillPoint = "Flat"

sketch4 = body.newObject("Sketcher::SketchObject", "Sketch003")
sketch4.AttachmentSupport = (doc.getObject("XY_Plane"), [""])
sketch4.MapMode = "FlatFace"
sketch4.addGeometry(Part.Circle(App.Vector(15, 15, 0), App.Vector(0, 0, 1), 2.5), False)
sketch4.addConstraint(Sketcher.Constraint("Diameter", 0, Q("5 mm")))
sketch4.addConstraint(Sketcher.Constraint("DistanceX", -1, 1, 0, 3, Q("15 mm")))
sketch4.addConstraint(Sketcher.Constraint("DistanceY", -1, 1, 0, 3, Q("15 mm")))
doc.recompute()
hole3 = body.newObject("PartDesign::Hole", "Hole002")
hole3.Profile = sketch4
hole3.ThreadType = "None"
hole3.Diameter = 5
hole3.DepthType = "Dimension"
hole3.Depth = 6000
hole3.DrillPoint = "Flat"

sketch5 = body.newObject("Sketcher::SketchObject", "Sketch004")
sketch5.AttachmentSupport = (doc.getObject("XY_Plane"), [""])
sketch5.MapMode = "FlatFace"
sketch5.addGeometry(Part.Circle(App.Vector(-15, 15, 0), App.Vector(0, 0, 1), 2.5), False)
sketch5.addConstraint(Sketcher.Constraint("Diameter", 0, Q("5 mm")))
sketch5.addConstraint(Sketcher.Constraint("DistanceX", 0, 3, -1, 1, Q("15 mm")))
sketch5.addConstraint(Sketcher.Constraint("DistanceY", -1, 1, 0, 3, Q("15 mm")))
doc.recompute()
hole4 = body.newObject("PartDesign::Hole", "Hole003")
hole4.Profile = sketch5
hole4.ThreadType = "None"
hole4.Diameter = 5
hole4.DepthType = "Dimension"
hole4.Depth = 6000
hole4.DrillPoint = "Flat"

doc.recompute()
